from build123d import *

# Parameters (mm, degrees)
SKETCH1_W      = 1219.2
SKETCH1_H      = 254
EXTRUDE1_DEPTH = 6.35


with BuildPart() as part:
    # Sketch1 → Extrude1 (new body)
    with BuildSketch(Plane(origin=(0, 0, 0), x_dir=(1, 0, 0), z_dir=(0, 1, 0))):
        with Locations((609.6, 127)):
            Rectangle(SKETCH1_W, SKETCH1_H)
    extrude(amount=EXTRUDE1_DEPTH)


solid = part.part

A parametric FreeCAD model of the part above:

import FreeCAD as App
import Part
import Sketcher
Q = App.Units.Quantity


def add_polygon(sketch, points):
    """Adds a closed chain of lines whose ends are joined by coincident constraints."""
    first, n = sketch.GeometryCount, len(points)
    for a, b in zip(points, points[1:] + points[:1]):
        sketch.addGeometry(Part.LineSegment(App.Vector(*a, 0), App.Vector(*b, 0)), False)
    for i in range(n):
        sketch.addConstraint(Sketcher.Constraint("Coincident", first + i, 2, first + (i + 1) % n, 1))

doc = App.newDocument("Part")
body = doc.addObject("PartDesign::Body", "Body")

# Sketch on XZ plane
sketch1 = doc.addObject("Sketcher::SketchObject", "Sketch")
body.addObject(sketch1)
sketch1.AttachmentSupport = (doc.XZ_Plane, [""])
sketch1.MapMode = "FlatFace"
add_polygon(sketch1, [(0, -254), (0, 0), (1219, 0), (1219, -254)])  # lines 0-3
sketch1.addConstraint([
    Sketcher.Constraint("Vertical", 0),
    Sketcher.Constraint("Horizontal", 1),
    Sketcher.Constraint("Vertical", 2),
    Sketcher.Constraint("Horizontal", 3),
    Sketcher.Constraint("Coincident", 0, 2, -1, 1),
    Sketcher.Constraint("DistanceX", 1, 1, 1, 2, Q("48 in")),
    Sketcher.Constraint("DistanceY", 0, 1, 0, 2, Q("10 in")),
])
pad1 = doc.addObject("PartDesign::Pad", "Pad")
body.addObject(pad1)
pad1.Profile = sketch1
pad1.Length = Q("0.25 in")
pad1.Reversed = True

doc.recompute()
